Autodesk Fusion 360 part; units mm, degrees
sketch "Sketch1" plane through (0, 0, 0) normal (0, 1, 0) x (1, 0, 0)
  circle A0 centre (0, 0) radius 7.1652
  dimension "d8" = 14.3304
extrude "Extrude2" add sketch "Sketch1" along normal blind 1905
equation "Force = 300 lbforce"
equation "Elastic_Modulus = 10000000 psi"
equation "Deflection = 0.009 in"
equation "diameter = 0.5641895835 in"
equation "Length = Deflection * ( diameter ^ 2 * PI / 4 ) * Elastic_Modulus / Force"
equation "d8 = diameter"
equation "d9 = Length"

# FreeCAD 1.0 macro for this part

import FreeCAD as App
import Part
import Sketcher
from FreeCAD import Vector
Q = App.Units.Quantity

doc = App.newDocument("Part")
body = doc.addObject("PartDesign::Body", "Body")

sketch1 = body.newObject("Sketcher::SketchObject", "Sketch")
sketch1.AttachmentSupport = (doc.getObject("XZ_Plane"), [""])
sketch1.MapMode = "FlatFace"
sketch1.addGeometry(Part.Circle(Vector(0, 0, 0), Vector(0, 0, 1), 7.1652), False)
sketch1.addConstraint([
    Sketcher.Constraint("Coincident", 0, 3, -1, 1),
    Sketcher.Constraint("Diameter", 0, Q("0.5642 in")),
])
pad1 = body.newObject("PartDesign::Pad", "Pad")
pad1.Profile = sketch1
pad1.Length = Q("75 in")
pad1.Reversed = True

doc.recompute()
